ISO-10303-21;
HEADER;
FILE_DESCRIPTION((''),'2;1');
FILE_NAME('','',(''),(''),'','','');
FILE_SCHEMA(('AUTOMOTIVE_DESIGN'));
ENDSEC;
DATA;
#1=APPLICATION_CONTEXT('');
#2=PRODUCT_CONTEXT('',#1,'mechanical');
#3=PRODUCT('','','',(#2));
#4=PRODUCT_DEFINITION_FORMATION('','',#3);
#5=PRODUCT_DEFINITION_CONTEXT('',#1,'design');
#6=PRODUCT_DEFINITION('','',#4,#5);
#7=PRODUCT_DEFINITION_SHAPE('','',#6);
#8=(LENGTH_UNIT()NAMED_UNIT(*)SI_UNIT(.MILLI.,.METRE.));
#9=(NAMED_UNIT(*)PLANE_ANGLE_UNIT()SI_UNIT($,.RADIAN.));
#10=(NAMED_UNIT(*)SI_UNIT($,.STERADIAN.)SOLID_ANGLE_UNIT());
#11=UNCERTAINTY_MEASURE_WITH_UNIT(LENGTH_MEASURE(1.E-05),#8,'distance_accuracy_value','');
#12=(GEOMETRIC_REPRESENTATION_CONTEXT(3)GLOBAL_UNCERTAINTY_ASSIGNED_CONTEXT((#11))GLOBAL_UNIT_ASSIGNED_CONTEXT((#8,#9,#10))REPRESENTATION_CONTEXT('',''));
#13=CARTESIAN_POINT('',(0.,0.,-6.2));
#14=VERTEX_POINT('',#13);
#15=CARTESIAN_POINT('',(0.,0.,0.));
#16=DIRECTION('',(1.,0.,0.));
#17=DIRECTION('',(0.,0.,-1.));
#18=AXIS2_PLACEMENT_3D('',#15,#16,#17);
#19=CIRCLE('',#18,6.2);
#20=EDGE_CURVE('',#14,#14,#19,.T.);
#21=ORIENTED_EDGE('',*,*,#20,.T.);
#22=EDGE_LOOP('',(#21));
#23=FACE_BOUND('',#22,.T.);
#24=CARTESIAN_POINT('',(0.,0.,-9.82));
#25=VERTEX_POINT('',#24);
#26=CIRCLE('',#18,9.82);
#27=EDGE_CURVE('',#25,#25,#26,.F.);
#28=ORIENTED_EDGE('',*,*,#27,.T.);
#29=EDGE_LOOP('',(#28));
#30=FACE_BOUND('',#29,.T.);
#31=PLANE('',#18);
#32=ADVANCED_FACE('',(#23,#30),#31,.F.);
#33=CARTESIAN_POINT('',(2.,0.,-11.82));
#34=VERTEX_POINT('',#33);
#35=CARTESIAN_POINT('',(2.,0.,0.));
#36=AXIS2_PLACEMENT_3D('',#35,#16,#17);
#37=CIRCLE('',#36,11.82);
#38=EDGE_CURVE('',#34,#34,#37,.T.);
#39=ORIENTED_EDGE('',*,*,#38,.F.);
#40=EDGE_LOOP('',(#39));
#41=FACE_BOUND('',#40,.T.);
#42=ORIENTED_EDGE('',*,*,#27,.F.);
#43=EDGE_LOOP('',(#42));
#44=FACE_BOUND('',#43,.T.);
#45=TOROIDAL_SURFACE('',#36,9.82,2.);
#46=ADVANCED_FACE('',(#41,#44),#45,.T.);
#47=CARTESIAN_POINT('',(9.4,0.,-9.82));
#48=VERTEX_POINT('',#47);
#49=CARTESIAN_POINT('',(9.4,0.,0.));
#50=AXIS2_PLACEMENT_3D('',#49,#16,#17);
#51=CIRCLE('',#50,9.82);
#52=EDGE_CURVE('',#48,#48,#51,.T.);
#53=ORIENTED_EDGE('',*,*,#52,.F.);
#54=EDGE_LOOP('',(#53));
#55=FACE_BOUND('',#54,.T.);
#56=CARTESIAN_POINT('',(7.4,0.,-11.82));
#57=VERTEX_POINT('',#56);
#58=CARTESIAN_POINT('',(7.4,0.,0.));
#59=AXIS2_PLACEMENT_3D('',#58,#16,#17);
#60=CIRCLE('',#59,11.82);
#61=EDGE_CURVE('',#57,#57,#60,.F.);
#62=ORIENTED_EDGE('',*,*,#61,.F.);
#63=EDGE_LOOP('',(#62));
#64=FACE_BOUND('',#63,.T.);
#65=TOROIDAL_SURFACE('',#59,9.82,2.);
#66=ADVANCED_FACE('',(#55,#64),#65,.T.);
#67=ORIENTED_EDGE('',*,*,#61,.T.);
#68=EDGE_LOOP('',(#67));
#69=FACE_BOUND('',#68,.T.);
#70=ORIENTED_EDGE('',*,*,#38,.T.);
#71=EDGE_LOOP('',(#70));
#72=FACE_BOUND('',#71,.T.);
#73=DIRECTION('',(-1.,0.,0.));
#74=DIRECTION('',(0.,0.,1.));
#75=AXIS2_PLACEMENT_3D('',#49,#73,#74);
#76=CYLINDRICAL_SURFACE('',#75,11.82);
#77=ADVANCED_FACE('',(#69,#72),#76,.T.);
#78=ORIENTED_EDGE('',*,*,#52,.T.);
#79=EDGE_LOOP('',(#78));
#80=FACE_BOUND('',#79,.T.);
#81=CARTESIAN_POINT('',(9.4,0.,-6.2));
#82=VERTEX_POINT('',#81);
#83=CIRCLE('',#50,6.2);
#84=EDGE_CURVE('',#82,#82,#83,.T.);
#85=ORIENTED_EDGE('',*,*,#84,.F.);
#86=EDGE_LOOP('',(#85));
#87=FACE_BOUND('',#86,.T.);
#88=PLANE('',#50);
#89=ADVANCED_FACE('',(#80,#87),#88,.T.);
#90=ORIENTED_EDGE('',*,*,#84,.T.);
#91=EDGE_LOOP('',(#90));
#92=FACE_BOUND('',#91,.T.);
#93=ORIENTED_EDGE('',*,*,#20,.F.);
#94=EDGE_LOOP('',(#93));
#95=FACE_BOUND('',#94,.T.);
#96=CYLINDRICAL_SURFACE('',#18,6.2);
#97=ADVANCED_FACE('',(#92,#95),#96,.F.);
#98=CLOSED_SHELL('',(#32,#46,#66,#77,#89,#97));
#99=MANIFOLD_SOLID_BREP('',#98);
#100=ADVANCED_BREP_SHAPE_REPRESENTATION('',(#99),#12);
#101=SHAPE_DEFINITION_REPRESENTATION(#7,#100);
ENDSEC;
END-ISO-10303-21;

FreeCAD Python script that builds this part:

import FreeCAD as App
import Part
import Sketcher
Q = App.Units.Quantity


def edges_at(feature, points):
    """Names of the edges that pass closest to the given points."""
    edges = feature.Shape.Edges
    near = lambda p: min(range(len(edges)), key=lambda i: edges[i].distToShape(Part.Vertex(*p))[0])
    return sorted({f"Edge{near(p) + 1}" for p in points})

doc = App.newDocument("Part")
body = doc.addObject("PartDesign::Body", "Body")

# Sketch on YZ plane
sketch1 = body.newObject("Sketcher::SketchObject", "Sketch")
sketch1.AttachmentSupport = (doc.getObject("YZ_Plane"), [""])
sketch1.MapMode = "FlatFace"
sketch1.addGeometry(Part.Circle(App.Vector(0, 0, 0), App.Vector(0, 0, 1), 12), False)
sketch1.addConstraint([
    Sketcher.Constraint("Coincident", 0, 3, -1, 1),
    Sketcher.Constraint("Diameter", 0, Q("23.64 mm")),
])
pad1 = body.newObject("PartDesign::Pad", "Pad")
pad1.Profile = sketch1
pad1.Length = 9.4

# Sketch on YZ plane
sketch2 = body.newObject("Sketcher::SketchObject", "Sketch001")
sketch2.AttachmentSupport = (doc.getObject("YZ_Plane"), [""])
sketch2.MapMode = "FlatFace"
sketch2.AttachmentOffset = App.Placement(App.Vector(0, 0, 9.4), App.Rotation())
sketch2.addGeometry(Part.Circle(App.Vector(0, 0, 0), App.Vector(0, 0, 1), 6), False)
sketch2.addConstraint([
    Sketcher.Constraint("Coincident", 0, 3, -1, 1),
    Sketcher.Constraint("Diameter", 0, Q("12.4 mm")),
])
pocket1 = body.newObject("PartDesign::Pocket", "Pocket")
pocket1.Profile = sketch2
pocket1.Type = "ThroughAll"
doc.recompute()

fillet = body.newObject("PartDesign::Fillet", "Fillet")
fillet.Base = (pocket1, edges_at(pocket1, [(0, 0, 11.82), (9.4, 0, 11.82)]))
fillet.Radius = 2

doc.recompute()
